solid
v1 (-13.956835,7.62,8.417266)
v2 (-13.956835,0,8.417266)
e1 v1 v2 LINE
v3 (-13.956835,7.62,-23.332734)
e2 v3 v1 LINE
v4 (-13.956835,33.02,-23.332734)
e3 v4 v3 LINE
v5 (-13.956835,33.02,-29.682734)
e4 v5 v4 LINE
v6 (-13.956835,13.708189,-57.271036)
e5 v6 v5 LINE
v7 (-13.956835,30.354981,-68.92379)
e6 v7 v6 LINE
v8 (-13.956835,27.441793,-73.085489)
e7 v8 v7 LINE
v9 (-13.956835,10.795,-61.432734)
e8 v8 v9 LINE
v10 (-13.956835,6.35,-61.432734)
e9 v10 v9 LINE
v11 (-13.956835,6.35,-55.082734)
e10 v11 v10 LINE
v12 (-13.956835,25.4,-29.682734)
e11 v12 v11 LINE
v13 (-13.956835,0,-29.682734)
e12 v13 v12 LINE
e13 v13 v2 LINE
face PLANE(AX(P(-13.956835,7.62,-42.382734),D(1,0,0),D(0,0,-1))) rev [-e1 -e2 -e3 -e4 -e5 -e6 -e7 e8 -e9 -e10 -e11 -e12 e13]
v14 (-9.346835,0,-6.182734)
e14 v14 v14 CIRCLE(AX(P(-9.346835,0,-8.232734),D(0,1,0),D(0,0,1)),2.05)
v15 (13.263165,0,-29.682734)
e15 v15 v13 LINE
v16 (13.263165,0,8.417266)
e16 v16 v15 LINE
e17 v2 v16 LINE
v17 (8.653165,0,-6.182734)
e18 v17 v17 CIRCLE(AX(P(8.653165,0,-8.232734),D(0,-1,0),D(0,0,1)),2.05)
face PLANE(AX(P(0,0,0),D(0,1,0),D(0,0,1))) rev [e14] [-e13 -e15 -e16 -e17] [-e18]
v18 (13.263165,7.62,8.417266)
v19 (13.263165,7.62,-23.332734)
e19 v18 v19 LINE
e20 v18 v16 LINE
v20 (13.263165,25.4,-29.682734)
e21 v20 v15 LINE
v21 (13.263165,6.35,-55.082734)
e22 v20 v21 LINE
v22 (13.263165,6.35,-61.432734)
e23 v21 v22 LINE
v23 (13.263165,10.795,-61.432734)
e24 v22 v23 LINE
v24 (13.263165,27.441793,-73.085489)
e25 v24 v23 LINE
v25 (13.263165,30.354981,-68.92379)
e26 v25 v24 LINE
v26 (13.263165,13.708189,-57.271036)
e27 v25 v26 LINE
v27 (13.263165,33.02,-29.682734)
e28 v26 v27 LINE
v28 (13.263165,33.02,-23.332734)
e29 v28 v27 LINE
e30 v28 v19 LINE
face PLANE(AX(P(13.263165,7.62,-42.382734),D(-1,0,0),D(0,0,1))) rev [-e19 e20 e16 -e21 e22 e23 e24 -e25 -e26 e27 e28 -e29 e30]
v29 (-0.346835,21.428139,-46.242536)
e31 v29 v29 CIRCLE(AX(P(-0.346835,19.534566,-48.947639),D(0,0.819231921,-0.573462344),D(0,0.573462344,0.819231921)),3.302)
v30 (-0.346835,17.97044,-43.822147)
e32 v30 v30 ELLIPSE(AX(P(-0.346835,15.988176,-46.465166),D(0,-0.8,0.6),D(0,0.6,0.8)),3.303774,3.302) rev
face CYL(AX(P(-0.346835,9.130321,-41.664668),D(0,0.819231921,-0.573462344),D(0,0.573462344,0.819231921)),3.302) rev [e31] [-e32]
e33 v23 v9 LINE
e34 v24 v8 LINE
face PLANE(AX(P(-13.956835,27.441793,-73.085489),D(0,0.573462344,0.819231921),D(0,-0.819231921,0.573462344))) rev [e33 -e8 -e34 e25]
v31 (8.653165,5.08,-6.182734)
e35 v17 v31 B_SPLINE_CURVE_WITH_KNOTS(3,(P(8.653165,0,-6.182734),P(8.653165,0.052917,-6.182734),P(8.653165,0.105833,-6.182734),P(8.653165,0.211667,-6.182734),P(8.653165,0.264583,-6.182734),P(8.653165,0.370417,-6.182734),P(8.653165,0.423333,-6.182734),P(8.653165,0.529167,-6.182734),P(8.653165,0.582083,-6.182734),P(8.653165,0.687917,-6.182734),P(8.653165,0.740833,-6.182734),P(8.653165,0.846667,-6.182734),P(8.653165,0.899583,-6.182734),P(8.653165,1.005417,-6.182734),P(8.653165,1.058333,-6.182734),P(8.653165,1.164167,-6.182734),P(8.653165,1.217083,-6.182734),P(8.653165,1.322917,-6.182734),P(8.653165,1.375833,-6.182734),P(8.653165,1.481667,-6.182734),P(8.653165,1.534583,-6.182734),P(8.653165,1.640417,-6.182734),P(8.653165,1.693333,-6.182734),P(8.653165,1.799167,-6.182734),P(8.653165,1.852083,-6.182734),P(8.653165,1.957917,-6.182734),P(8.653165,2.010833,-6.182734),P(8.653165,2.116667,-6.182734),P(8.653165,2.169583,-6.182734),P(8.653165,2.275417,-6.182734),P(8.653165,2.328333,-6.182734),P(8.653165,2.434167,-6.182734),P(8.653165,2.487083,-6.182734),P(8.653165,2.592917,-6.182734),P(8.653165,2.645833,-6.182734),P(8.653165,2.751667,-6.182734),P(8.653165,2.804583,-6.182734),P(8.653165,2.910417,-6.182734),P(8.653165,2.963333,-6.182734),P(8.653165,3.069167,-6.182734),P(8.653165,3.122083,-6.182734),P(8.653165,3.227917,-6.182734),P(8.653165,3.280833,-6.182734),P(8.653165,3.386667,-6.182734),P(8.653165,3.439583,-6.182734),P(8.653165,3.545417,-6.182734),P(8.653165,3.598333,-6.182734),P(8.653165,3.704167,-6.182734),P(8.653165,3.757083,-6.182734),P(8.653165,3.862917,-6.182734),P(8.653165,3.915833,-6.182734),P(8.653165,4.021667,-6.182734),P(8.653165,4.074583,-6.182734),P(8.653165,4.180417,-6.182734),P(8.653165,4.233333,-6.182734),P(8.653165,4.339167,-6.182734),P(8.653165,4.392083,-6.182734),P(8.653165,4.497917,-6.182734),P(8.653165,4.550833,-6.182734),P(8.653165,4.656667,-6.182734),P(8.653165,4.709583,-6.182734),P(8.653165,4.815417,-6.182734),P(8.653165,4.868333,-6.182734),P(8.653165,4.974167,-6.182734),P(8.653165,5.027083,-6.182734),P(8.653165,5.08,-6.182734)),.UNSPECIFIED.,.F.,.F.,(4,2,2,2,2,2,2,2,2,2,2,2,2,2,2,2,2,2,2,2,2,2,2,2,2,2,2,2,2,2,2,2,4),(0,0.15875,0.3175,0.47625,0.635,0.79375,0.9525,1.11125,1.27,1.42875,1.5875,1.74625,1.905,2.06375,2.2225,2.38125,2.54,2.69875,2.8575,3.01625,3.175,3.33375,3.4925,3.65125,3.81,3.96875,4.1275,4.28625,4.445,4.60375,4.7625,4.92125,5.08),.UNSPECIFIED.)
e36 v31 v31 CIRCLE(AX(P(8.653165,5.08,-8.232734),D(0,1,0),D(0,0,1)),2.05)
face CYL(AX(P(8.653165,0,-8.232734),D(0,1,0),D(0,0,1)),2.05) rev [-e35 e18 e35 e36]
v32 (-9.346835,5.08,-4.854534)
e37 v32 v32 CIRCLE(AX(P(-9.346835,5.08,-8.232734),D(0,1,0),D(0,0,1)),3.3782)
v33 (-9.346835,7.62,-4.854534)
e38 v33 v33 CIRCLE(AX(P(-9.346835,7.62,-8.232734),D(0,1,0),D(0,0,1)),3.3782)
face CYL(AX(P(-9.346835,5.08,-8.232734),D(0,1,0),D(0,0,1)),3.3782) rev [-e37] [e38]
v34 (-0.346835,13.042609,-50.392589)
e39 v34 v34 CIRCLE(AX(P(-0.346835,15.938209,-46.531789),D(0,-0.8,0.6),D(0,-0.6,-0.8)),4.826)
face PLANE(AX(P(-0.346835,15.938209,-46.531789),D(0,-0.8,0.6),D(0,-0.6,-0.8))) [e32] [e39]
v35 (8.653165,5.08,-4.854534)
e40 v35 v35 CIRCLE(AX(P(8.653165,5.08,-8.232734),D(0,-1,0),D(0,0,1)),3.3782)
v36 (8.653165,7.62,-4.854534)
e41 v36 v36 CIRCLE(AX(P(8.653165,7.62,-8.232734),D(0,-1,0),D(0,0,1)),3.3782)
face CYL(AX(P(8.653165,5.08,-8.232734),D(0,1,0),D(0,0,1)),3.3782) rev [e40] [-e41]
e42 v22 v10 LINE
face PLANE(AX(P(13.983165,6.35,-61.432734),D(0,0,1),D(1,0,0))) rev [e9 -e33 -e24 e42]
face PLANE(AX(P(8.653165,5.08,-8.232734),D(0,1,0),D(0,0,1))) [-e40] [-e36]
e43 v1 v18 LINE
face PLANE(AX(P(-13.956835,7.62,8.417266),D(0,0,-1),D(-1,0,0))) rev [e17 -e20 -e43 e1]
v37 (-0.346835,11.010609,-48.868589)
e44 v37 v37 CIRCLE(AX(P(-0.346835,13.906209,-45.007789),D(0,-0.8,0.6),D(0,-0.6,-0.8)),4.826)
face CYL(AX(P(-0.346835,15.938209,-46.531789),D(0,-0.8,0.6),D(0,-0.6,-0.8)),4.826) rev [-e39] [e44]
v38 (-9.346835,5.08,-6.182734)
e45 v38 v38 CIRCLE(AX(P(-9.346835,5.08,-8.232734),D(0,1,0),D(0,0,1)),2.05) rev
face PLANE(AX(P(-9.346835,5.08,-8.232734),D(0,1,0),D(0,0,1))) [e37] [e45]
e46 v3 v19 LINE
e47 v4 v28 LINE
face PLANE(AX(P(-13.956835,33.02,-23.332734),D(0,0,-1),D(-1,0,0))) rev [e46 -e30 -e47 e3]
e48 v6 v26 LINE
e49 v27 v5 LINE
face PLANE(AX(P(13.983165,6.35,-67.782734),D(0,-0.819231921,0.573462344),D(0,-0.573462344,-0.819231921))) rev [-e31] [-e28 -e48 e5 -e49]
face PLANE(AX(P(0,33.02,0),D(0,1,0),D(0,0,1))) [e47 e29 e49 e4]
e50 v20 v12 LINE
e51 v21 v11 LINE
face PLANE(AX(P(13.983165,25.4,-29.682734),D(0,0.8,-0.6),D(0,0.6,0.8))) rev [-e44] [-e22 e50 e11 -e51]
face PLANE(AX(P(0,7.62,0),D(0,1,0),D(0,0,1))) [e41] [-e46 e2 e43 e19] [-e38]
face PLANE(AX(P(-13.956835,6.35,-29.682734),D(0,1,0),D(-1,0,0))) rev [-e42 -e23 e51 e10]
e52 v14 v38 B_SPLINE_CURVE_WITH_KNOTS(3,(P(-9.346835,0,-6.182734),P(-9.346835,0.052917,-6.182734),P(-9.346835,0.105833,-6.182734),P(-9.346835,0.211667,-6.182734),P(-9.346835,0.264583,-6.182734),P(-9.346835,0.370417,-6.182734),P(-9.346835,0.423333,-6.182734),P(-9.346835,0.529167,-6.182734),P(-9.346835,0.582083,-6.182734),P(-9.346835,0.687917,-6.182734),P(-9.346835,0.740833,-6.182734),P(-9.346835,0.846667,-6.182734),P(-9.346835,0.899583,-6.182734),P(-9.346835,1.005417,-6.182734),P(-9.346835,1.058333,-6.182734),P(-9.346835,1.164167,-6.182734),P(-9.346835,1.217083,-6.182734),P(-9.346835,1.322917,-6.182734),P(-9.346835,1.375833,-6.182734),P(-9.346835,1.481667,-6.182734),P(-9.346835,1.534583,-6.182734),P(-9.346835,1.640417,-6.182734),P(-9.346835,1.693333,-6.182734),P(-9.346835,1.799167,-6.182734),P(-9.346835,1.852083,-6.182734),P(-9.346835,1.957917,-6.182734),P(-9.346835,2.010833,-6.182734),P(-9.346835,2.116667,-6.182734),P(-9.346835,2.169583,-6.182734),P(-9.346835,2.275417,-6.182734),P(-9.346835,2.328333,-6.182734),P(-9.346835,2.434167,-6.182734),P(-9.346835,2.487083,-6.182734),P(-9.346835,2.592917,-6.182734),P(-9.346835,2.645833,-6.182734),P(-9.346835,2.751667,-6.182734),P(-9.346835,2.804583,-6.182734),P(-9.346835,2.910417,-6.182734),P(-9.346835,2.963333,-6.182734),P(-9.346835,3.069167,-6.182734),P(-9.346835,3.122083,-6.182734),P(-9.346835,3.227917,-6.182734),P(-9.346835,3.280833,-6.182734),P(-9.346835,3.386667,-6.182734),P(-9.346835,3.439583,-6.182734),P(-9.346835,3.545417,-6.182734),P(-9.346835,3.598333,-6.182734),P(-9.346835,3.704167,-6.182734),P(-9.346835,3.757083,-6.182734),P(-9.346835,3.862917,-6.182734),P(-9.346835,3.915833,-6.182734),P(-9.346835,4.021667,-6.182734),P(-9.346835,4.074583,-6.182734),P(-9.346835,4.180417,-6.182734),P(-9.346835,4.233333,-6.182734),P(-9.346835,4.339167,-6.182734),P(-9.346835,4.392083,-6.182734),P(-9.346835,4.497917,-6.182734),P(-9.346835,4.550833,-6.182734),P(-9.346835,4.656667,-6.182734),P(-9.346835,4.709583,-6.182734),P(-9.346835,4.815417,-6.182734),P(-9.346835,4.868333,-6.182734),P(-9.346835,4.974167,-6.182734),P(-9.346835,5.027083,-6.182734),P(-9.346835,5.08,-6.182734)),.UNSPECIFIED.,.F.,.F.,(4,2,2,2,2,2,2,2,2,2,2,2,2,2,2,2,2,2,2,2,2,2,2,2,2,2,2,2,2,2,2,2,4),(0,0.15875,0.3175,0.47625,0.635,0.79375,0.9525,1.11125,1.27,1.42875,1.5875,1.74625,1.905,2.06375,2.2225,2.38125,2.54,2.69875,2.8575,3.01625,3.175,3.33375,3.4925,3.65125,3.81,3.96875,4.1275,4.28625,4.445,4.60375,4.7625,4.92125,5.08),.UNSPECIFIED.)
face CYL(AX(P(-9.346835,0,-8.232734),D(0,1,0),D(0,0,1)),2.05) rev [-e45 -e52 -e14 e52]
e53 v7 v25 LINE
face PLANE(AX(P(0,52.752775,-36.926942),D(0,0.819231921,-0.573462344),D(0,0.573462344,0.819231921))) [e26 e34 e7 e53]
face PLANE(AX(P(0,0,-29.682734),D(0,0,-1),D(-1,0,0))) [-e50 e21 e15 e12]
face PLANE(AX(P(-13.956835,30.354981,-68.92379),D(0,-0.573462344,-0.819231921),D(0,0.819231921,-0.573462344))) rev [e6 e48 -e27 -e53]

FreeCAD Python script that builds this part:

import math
import FreeCAD as App
import Part
import Sketcher
Q = App.Units.Quantity


def add_polygon(sketch, points):
    """Adds a closed chain of lines whose ends are joined by coincident constraints."""
    first, n = sketch.GeometryCount, len(points)
    for a, b in zip(points, points[1:] + points[:1]):
        sketch.addGeometry(Part.LineSegment(App.Vector(*a, 0), App.Vector(*b, 0)), False)
    for i in range(n):
        sketch.addConstraint(Sketcher.Constraint("Coincident", first + i, 2, first + (i + 1) % n, 1))

doc = App.newDocument("Part")
body = doc.addObject("PartDesign::Body", "Body")

# Sketch on XZ plane
sketch1 = body.newObject("Sketcher::SketchObject", "Sketch")
sketch1.AttachmentSupport = (doc.getObject("XZ_Plane"), [""])
sketch1.MapMode = "FlatFace"
add_polygon(sketch1, [(-13.956835, -42.382734), (-13.956835, 8.417266), (13.263165, 8.417266), (13.263165, -42.382734)])  # lines 0-3
sketch1.addConstraint(Sketcher.Constraint("Vertical", 0))
sketch1.addConstraint(Sketcher.Constraint("Horizontal", 1))
sketch1.addConstraint(Sketcher.Constraint("Vertical", 2))
sketch1.addConstraint(Sketcher.Constraint("Horizontal", 3))
sketch1.addConstraint(Sketcher.Constraint("DistanceY", 0, 1, 0, 2, Q("2 in")))
sketch1.addConstraint(Sketcher.Constraint("DistanceX", 1, 1, 1, 2, Q("27.22 mm")))
sketch1.addConstraint(Sketcher.Constraint("DistanceX", 0, 2, -1, 1, Q("13.956835 mm")))
sketch1.addConstraint(Sketcher.Constraint("DistanceY", -1, 1, 0, 2, Q("8.417266 mm")))
pad1 = body.newObject("PartDesign::Pad", "Pad")
pad1.Profile = sketch1
pad1.Length = Q("0.3 in")
pad1.Reversed = True

# Sketch on XZ plane
sketch2 = body.newObject("Sketcher::SketchObject", "Sketch001")
sketch2.AttachmentSupport = (doc.getObject("XZ_Plane"), [""])
sketch2.MapMode = "FlatFace"
sketch2.AttachmentOffset = App.Placement(App.Vector(0, 0, -0.3 * 25.4), App.Rotation())
sketch2.addGeometry(Part.Circle(App.Vector(-9.346835, -8.232734, 0), App.Vector(0, 0, 1), 2.05), False)
sketch2.addConstraint(Sketcher.Constraint("Diameter", 0, Q("4.1 mm")))
sketch2.addConstraint(Sketcher.Constraint("DistanceX", 0, 3, -1, 1, Q("9.346835 mm")))
sketch2.addConstraint(Sketcher.Constraint("DistanceY", 0, 3, -1, 1, Q("8.232734 mm")))
pocket1 = body.newObject("PartDesign::Pocket", "Pocket")
pocket1.Profile = sketch2
pocket1.Length = Q("0.3 in")
pocket1.Reversed = True

# Sketch on XZ plane
sketch3 = body.newObject("Sketcher::SketchObject", "Sketch002")
sketch3.AttachmentSupport = (doc.getObject("XZ_Plane"), [""])
sketch3.MapMode = "FlatFace"
sketch3.AttachmentOffset = App.Placement(App.Vector(0, 0, -0.3 * 25.4), App.Rotation())
sketch3.addGeometry(Part.Circle(App.Vector(-9.346835, -8.232734, 0), App.Vector(0, 0, 1), 3.3782), False)
sketch3.addConstraint(Sketcher.Constraint("Diameter", 0, Q("0.266 in")))
sketch3.addConstraint(Sketcher.Constraint("DistanceX", 0, 3, -1, 1, Q("9.346835 mm")))
sketch3.addConstraint(Sketcher.Constraint("DistanceY", 0, 3, -1, 1, Q("8.232734 mm")))
pocket2 = body.newObject("PartDesign::Pocket", "Pocket001")
pocket2.Profile = sketch3
pocket2.Length = Q("0.1 in")
pocket2.Reversed = True
doc.recompute()

datumplane = body.newObject("PartDesign::Plane", "DatumPlane")
datumplane.AttachmentSupport = (doc.getObject("YZ_Plane"), [""])
datumplane.MapMode = "FlatFace"
datumplane.AttachmentOffset = App.Placement(App.Vector(0, 0, -0.346835), App.Rotation())
mirrored = body.newObject("PartDesign::Mirrored", "Mirrored")
mirrored.Originals = [pocket1, pocket2]
mirrored.MirrorPlane = (datumplane, [""])
body.Tip = mirrored

# Sketch on XZ plane
sketch4 = body.newObject("Sketcher::SketchObject", "Sketch003")
sketch4.AttachmentSupport = (doc.getObject("XZ_Plane"), [""])
sketch4.MapMode = "FlatFace"
sketch4.AttachmentOffset = App.Placement(App.Vector(0, 0, -0.3 * 25.4), App.Rotation())
add_polygon(sketch4, [(-13.956835, -42.382734), (-13.956835, -23.332734), (13.263165, -23.332734), (13.263165, -42.382734)])  # lines 0-3
sketch4.addConstraint(Sketcher.Constraint("Vertical", 0))
sketch4.addConstraint(Sketcher.Constraint("Horizontal", 1))
sketch4.addConstraint(Sketcher.Constraint("Vertical", 2))
sketch4.addConstraint(Sketcher.Constraint("Horizontal", 3))
sketch4.addConstraint(Sketcher.Constraint("DistanceY", 0, 1, 0, 2, Q("0.75 in")))
sketch4.addConstraint(Sketcher.Constraint("DistanceX", 1, 1, 1, 2, Q("27.22 mm")))
sketch4.addConstraint(Sketcher.Constraint("DistanceX", 0, 2, -1, 1, Q("13.956835 mm")))
sketch4.addConstraint(Sketcher.Constraint("DistanceY", 0, 2, -1, 1, Q("23.332734 mm")))
pad2 = body.newObject("PartDesign::Pad", "Pad001")
pad2.Profile = sketch4
pad2.Length = Q("1 in")
pad2.Reversed = True

# Sketch on XY plane
sketch5 = body.newObject("Sketcher::SketchObject", "Sketch004")
sketch5.AttachmentSupport = (doc.getObject("XY_Plane"), [""])
sketch5.MapMode = "FlatFace"
sketch5.AttachmentOffset = App.Placement(App.Vector(0, 0, -42.382734), App.Rotation())
add_polygon(sketch5, [(13.263165, 33.02), (13.263165, 0), (-13.956835, 0), (-13.956835, 33.02)])  # lines 0-3
sketch5.addConstraint(Sketcher.Constraint("Vertical", 0))
sketch5.addConstraint(Sketcher.Constraint("Horizontal", 1))
sketch5.addConstraint(Sketcher.Constraint("Vertical", 2))
sketch5.addConstraint(Sketcher.Constraint("Horizontal", 3))
sketch5.addConstraint(Sketcher.Constraint("PointOnObject", 0, 2, -1))
sketch5.addConstraint(Sketcher.Constraint("DistanceY", 0, 2, 0, 1, Q("1.3 in")))
sketch5.addConstraint(Sketcher.Constraint("DistanceX", 1, 2, 1, 1, Q("27.22 mm")))
sketch5.addConstraint(Sketcher.Constraint("DistanceX", -1, 1, 0, 2, Q("13.263165 mm")))
pad3 = body.newObject("PartDesign::Pad", "Pad002")
pad3.Profile = sketch5
pad3.Length = Q("1 in")
pad3.Reversed = True

# Sketch on XY plane
sketch6 = body.newObject("Sketcher::SketchObject", "Sketch005")
sketch6.AttachmentSupport = (doc.getObject("XY_Plane"), [""])
sketch6.MapMode = "FlatFace"
sketch6.AttachmentOffset = App.Placement(App.Vector(0, 0, -67.782734), App.Rotation())
add_polygon(sketch6, [(13.263165, 6.35), (13.263165, 0), (-13.956835, 0), (-13.956835, 6.35)])  # lines 0-3
sketch6.addConstraint(Sketcher.Constraint("Vertical", 0))
sketch6.addConstraint(Sketcher.Constraint("Horizontal", 1))
sketch6.addConstraint(Sketcher.Constraint("Vertical", 2))
sketch6.addConstraint(Sketcher.Constraint("Horizontal", 3))
sketch6.addConstraint(Sketcher.Constraint("PointOnObject", 0, 2, -1))
sketch6.addConstraint(Sketcher.Constraint("DistanceY", 0, 2, 0, 1, Q("0.25 in")))
sketch6.addConstraint(Sketcher.Constraint("DistanceX", 1, 2, 1, 1, Q("27.22 mm")))
sketch6.addConstraint(Sketcher.Constraint("DistanceX", -1, 1, 0, 2, Q("13.263165 mm")))
pocket3 = body.newObject("PartDesign::Pocket", "Pocket002")
pocket3.Profile = sketch6
pocket3.Length = Q("1.5 in")
pocket3.Reversed = True

# Sketch on YZ plane
sketch7 = body.newObject("Sketcher::SketchObject", "Sketch006")
sketch7.AttachmentSupport = (doc.getObject("YZ_Plane"), [""])
sketch7.MapMode = "FlatFace"
sketch7.AttachmentOffset = App.Placement(App.Vector(0, 0, -13.956835), App.Rotation())
add_polygon(sketch7, [(6.35, -29.682734), (25.4, -29.682734), (6.35, -55.082734)])  # lines 0-2
sketch7.addConstraint(Sketcher.Constraint("Horizontal", 0))
sketch7.addConstraint(Sketcher.Constraint("Vertical", 2))
sketch7.addConstraint(Sketcher.Constraint("DistanceY", 2, 1, 2, 2, Q("1 in")))
sketch7.addConstraint(Sketcher.Constraint("DistanceX", -1, 1, 0, 2, Q("1 in")))
sketch7.addConstraint(Sketcher.Constraint("DistanceX", 0, 1, 0, 2, Q("0.75 in")))
sketch7.addConstraint(Sketcher.Constraint("DistanceY", 0, 2, -1, 1, Q("29.682734 mm")))
pocket4 = body.newObject("PartDesign::Pocket", "Pocket003")
pocket4.Profile = sketch7
pocket4.Length = Q("1.1 in")
pocket4.Reversed = True

# Sketch on YZ plane
sketch8 = body.newObject("Sketcher::SketchObject", "Sketch007")
sketch8.AttachmentSupport = (doc.getObject("YZ_Plane"), [""])
sketch8.MapMode = "FlatFace"
sketch8.AttachmentOffset = App.Placement(App.Vector(0, 0, -13.956835), App.Rotation())
add_polygon(sketch8, [(33.02, -67.782734), (6.35, -67.782734), (33.02, -29.682734)])  # lines 0-2
sketch8.addConstraint(Sketcher.Constraint("Horizontal", 0))
sketch8.addConstraint(Sketcher.Constraint("Vertical", 2))
sketch8.addConstraint(Sketcher.Constraint("DistanceY", 2, 2, 2, 1, Q("1.5 in")))
sketch8.addConstraint(Sketcher.Constraint("DistanceX", 0, 2, 0, 1, Q("1.05 in")))
sketch8.addConstraint(Sketcher.Constraint("DistanceX", -1, 1, 1, 2, Q("1.3 in")))
sketch8.addConstraint(Sketcher.Constraint("DistanceY", 0, 2, -1, 1, Q("67.782734 mm")))
pocket5 = body.newObject("PartDesign::Pocket", "Pocket004")
pocket5.Profile = sketch8
pocket5.Length = Q("1.1 in")
pocket5.Reversed = True

# Sketch on YZ plane
sketch9 = body.newObject("Sketcher::SketchObject", "Sketch008")
sketch9.AttachmentSupport = (doc.getObject("YZ_Plane"), [""])
sketch9.MapMode = "FlatFace"
sketch9.AttachmentOffset = App.Placement(App.Vector(0, 0, -13.956835), App.Rotation())
add_polygon(sketch9, [(6.35, -61.432734), (10.795, -61.432734), (6.35, -67.782734)])  # lines 0-2
sketch9.addConstraint(Sketcher.Constraint("Horizontal", 0))
sketch9.addConstraint(Sketcher.Constraint("Vertical", 2))
sketch9.addConstraint(Sketcher.Constraint("DistanceY", 2, 1, 2, 2, Q("0.25 in")))
sketch9.addConstraint(Sketcher.Constraint("DistanceX", 0, 1, 0, 2, Q("0.175 in")))
sketch9.addConstraint(Sketcher.Constraint("DistanceX", -1, 1, 1, 2, Q("0.25 in")))
sketch9.addConstraint(Sketcher.Constraint("DistanceY", 0, 2, -1, 1, Q("61.432734 mm")))
pocket6 = body.newObject("PartDesign::Pocket", "Pocket005")
pocket6.Profile = sketch9
pocket6.Length = Q("1.1 in")
pocket6.Reversed = True

# Sketch on an angled plane
sketch10 = body.newObject("Sketcher::SketchObject", "Sketch009")
sketch10.Placement = App.Placement(App.Vector(0, 36.105982, -25.274188), App.Rotation(App.Vector(1, 0, 0), App.Vector(0, -0.573462344, -0.819231921), App.Vector(0, 0.819231921, -0.573462344), "ZXY"))
add_polygon(sketch10, [(-13.956835, 44.137131), (-13.956835, 39.057131), (13.263165, 39.057131), (13.263165, 44.137131)])  # lines 0-3
sketch10.addConstraint(Sketcher.Constraint("Vertical", 0))
sketch10.addConstraint(Sketcher.Constraint("Horizontal", 1))
sketch10.addConstraint(Sketcher.Constraint("Vertical", 2))
sketch10.addConstraint(Sketcher.Constraint("Horizontal", 3))
sketch10.addConstraint(Sketcher.Constraint("DistanceY", 0, 2, 0, 1, Q("0.2 in")))
sketch10.addConstraint(Sketcher.Constraint("DistanceX", 1, 1, 1, 2, Q("27.22 mm")))
sketch10.addConstraint(Sketcher.Constraint("DistanceY", -1, 1, 0, 2, Q("39.057131 mm")))
sketch10.addConstraint(Sketcher.Constraint("DistanceX", 0, 2, -1, 1, Q("13.956835 mm")))
pad4 = body.newObject("PartDesign::Pad", "Pad003")
pad4.Profile = sketch10
pad4.Length = Q("0.8 in")

# Sketch on an angled plane
sketch11 = body.newObject("Sketcher::SketchObject", "Sketch010")
sketch11.Placement = App.Placement(App.Vector(0, 36.105982, -25.274188), App.Rotation(App.Vector(1, 0, 0), App.Vector(0, -0.573462344, -0.819231921), App.Vector(0, 0.819231921, -0.573462344), "ZXY"))
sketch11.addGeometry(Part.ArcOfCircle(Part.Circle(App.Vector(-0.346835, 28.897131, 0), App.Vector(0, 0, 1), 3.302), math.radians(0), math.radians(90)), False)
sketch11.addGeometry(Part.ArcOfCircle(Part.Circle(App.Vector(-0.346835, 28.897131, 0), App.Vector(0, 0, 1), 3.302), math.radians(90), math.radians(270)), False)
sketch11.addGeometry(Part.ArcOfCircle(Part.Circle(App.Vector(-0.346835, 28.897131, 0), App.Vector(0, 0, 1), 3.302), math.radians(-90), math.radians(0)), False)
sketch11.addConstraint(Sketcher.Constraint("Tangent", 0, 2, 1, 1))
sketch11.addConstraint(Sketcher.Constraint("Tangent", 1, 2, 2, 1))
sketch11.addConstraint(Sketcher.Constraint("Tangent", 2, 2, 0, 1))
sketch11.addConstraint(Sketcher.Constraint("Horizontal", 1, 3, 2, 2))
sketch11.addConstraint(Sketcher.Constraint("Vertical", 2, 3, 0, 2))
sketch11.addConstraint(Sketcher.Constraint("Vertical", 0, 2, 1, 2))
sketch11.addConstraint(Sketcher.Constraint("Radius", 0, Q("0.13 in")))
sketch11.addConstraint(Sketcher.Constraint("DistanceY", -1, 1, 0, 3, Q("28.897131 mm")))
sketch11.addConstraint(Sketcher.Constraint("DistanceX", 0, 3, -1, 1, Q("0.346835 mm")))
pocket7 = body.newObject("PartDesign::Pocket", "Pocket006")
pocket7.Profile = sketch11
pocket7.Length = Q("0.5 in")

# Sketch on an angled plane
sketch12 = body.newObject("Sketcher::SketchObject", "Sketch011")
sketch12.Placement = App.Placement(App.Vector(0, 30.503712, -22.877784), App.Rotation(App.Vector(1, 0, 0), App.Vector(0, 0.6, 0.8), App.Vector(0, -0.8, 0.6), "ZXY"))
sketch12.addGeometry(Part.Circle(App.Vector(-0.346835, -27.662506, 0), App.Vector(0, 0, 1), 4.826), False)
sketch12.addConstraint(Sketcher.Constraint("Diameter", 0, Q("0.38 in")))
sketch12.addConstraint(Sketcher.Constraint("DistanceX", 0, 3, -1, 1, Q("0.346835 mm")))
sketch12.addConstraint(Sketcher.Constraint("DistanceY", 0, 3, -1, 1, Q("27.662506 mm")))
pocket8 = body.newObject("PartDesign::Pocket", "Pocket007")
pocket8.Profile = sketch12
pocket8.Length = Q("0.1 in")

doc.recompute()
